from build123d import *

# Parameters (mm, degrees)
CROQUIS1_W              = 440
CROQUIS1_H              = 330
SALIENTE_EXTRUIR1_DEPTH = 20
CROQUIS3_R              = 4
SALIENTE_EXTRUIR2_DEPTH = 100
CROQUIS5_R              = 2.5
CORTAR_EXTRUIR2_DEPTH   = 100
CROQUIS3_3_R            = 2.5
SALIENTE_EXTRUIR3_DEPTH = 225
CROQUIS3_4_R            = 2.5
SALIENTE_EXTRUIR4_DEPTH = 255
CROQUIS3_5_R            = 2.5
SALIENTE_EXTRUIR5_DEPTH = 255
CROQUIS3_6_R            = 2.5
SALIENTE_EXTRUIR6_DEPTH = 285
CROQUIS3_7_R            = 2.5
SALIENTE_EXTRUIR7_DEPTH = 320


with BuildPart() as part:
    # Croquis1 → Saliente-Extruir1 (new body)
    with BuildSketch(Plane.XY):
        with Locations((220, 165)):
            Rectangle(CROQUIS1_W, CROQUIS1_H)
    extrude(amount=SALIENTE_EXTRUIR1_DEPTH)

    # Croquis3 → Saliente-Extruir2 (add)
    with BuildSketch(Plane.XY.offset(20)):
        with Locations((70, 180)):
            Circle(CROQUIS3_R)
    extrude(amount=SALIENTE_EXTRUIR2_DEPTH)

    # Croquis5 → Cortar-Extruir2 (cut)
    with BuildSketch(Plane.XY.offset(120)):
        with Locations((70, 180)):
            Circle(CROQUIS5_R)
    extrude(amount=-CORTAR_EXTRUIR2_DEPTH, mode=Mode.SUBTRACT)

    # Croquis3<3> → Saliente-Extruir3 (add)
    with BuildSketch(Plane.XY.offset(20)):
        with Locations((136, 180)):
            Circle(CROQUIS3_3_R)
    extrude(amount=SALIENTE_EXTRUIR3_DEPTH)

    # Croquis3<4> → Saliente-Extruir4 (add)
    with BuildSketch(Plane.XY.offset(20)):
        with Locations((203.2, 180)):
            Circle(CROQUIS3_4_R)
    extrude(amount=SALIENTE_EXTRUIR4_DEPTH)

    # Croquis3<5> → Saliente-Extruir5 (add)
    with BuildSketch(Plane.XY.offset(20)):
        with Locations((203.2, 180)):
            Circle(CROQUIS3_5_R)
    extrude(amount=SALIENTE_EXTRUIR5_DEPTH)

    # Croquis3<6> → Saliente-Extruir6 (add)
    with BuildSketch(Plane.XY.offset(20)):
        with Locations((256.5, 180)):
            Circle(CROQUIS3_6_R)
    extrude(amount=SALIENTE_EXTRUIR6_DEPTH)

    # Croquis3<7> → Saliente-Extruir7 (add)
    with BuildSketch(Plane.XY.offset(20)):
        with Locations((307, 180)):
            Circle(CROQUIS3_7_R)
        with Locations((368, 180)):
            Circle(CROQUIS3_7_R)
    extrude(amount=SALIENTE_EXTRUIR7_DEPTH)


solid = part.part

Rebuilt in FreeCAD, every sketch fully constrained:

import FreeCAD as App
import Part
import Sketcher
from FreeCAD import Vector
Q = App.Units.Quantity

doc = App.newDocument("Part")
params = doc.addObject("Spreadsheet::Sheet", "Params")
for row, (alias, value) in enumerate([
    ("sketch1_width", "440 mm"),
    ("sketch1_height", "330 mm"),
    ("pad1_length", "20 mm"),
    ("sketch2_diameter", "8 mm"),
    ("pad2_length", "100 mm"),
    ("sketch3_diameter", "5 mm"),
    ("pocket1_length", "100 mm"),
    ("sketch4_diameter", "5 mm"),
    ("pad3_length", "225 mm"),
    ("sketch5_diameter", "5 mm"),
    ("pad4_length", "255 mm"),
    ("sketch6_diameter", "5 mm"),
    ("pad5_length", "255 mm"),
    ("sketch7_diameter", "5 mm"),
    ("pad6_length", "285 mm"),
    ("sketch8_diameter", "5 mm"),
    ("pad7_length", "320 mm"),
], start=1):
    params.set(f"A{row}", alias)
    params.set(f"B{row}", "=" + value)
    params.setAlias(f"B{row}", alias)

body = doc.addObject("PartDesign::Body", "Body")

sketch1 = body.newObject("Sketcher::SketchObject", "Sketch")
sketch1.AttachmentSupport = (doc.getObject("XY_Plane"), [""])
sketch1.MapMode = "FlatFace"
sketch1.addGeometry([
    Part.LineSegment(Vector(0, 330, 0), Vector(0, 0, 0)),
    Part.LineSegment(Vector(0, 0, 0), Vector(440, 0, 0)),
    Part.LineSegment(Vector(440, 0, 0), Vector(440, 330, 0)),
    Part.LineSegment(Vector(440, 330, 0), Vector(0, 330, 0)),
], False)
sketch1.addConstraint([
    Sketcher.Constraint("Coincident", 0, 2, 1, 1),
    Sketcher.Constraint("Coincident", 1, 2, 2, 1),
    Sketcher.Constraint("Coincident", 2, 2, 3, 1),
    Sketcher.Constraint("Coincident", 3, 2, 0, 1),
    Sketcher.Constraint("Vertical", 0),
    Sketcher.Constraint("Horizontal", 1),
    Sketcher.Constraint("Vertical", 2),
    Sketcher.Constraint("Horizontal", 3),
    Sketcher.Constraint("Coincident", 0, 2, -1, 1),
    Sketcher.Constraint("DistanceX", 1, 1, 1, 2, Q("440 mm")),
    Sketcher.Constraint("DistanceY", 0, 2, 0, 1, Q("330 mm")),
])
sketch1.setExpression("Constraints[9]", "Params.sketch1_width")
sketch1.setExpression("Constraints[10]", "Params.sketch1_height")
pad1 = body.newObject("PartDesign::Pad", "Pad")
pad1.Profile = sketch1
pad1.setExpression("Length", "Params.pad1_length")

sketch2 = body.newObject("Sketcher::SketchObject", "Sketch001")
sketch2.AttachmentSupport = (doc.getObject("XY_Plane"), [""])
sketch2.MapMode = "FlatFace"
sketch2.AttachmentOffset = App.Placement(Vector(0, 0, 20), App.Rotation())
sketch2.addGeometry(Part.Circle(Vector(70, 180, 0), Vector(0, 0, 1), 4), False)
sketch2.addConstraint([
    Sketcher.Constraint("Diameter", 0, Q("8 mm")),
    Sketcher.Constraint("DistanceX", -1, 1, 0, 3, Q("70 mm")),
    Sketcher.Constraint("DistanceY", -1, 1, 0, 3, Q("180 mm")),
])
sketch2.setExpression("Constraints[0]", "Params.sketch2_diameter")
pad2 = body.newObject("PartDesign::Pad", "Pad001")
pad2.Profile = sketch2
pad2.setExpression("Length", "Params.pad2_length")

sketch3 = body.newObject("Sketcher::SketchObject", "Sketch002")
sketch3.AttachmentSupport = (doc.getObject("XY_Plane"), [""])
sketch3.MapMode = "FlatFace"
sketch3.AttachmentOffset = App.Placement(Vector(0, 0, 120), App.Rotation())
sketch3.addGeometry(Part.Circle(Vector(70, 180, 0), Vector(0, 0, 1), 2.5), False)
sketch3.addConstraint([
    Sketcher.Constraint("Diameter", 0, Q("5 mm")),
    Sketcher.Constraint("DistanceX", -1, 1, 0, 3, Q("70 mm")),
    Sketcher.Constraint("DistanceY", -1, 1, 0, 3, Q("180 mm")),
])
sketch3.setExpression("Constraints[0]", "Params.sketch3_diameter")
pocket1 = body.newObject("PartDesign::Pocket", "Pocket")
pocket1.Profile = sketch3
pocket1.setExpression("Length", "Params.pocket1_length")

sketch4 = body.newObject("Sketcher::SketchObject", "Sketch003")
sketch4.AttachmentSupport = (doc.getObject("XY_Plane"), [""])
sketch4.MapMode = "FlatFace"
sketch4.AttachmentOffset = App.Placement(Vector(0, 0, 20), App.Rotation())
sketch4.addGeometry(Part.Circle(Vector(136, 180, 0), Vector(0, 0, 1), 2.5), False)
sketch4.addConstraint([
    Sketcher.Constraint("Diameter", 0, Q("5 mm")),
    Sketcher.Constraint("DistanceX", -1, 1, 0, 3, Q("136 mm")),
    Sketcher.Constraint("DistanceY", -1, 1, 0, 3, Q("180 mm")),
])
sketch4.setExpression("Constraints[0]", "Params.sketch4_diameter")
pad3 = body.newObject("PartDesign::Pad", "Pad002")
pad3.Profile = sketch4
pad3.setExpression("Length", "Params.pad3_length")

sketch5 = body.newObject("Sketcher::SketchObject", "Sketch004")
sketch5.AttachmentSupport = (doc.getObject("XY_Plane"), [""])
sketch5.MapMode = "FlatFace"
sketch5.AttachmentOffset = App.Placement(Vector(0, 0, 20), App.Rotation())
sketch5.addGeometry(Part.Circle(Vector(203.2, 180, 0), Vector(0, 0, 1), 2.5), False)
sketch5.addConstraint([
    Sketcher.Constraint("Diameter", 0, Q("5 mm")),
    Sketcher.Constraint("DistanceY", -1, 1, 0, 3, Q("180 mm")),
    Sketcher.Constraint("DistanceX", -1, 1, 0, 3, Q("203.2 mm")),
])
sketch5.setExpression("Constraints[0]", "Params.sketch5_diameter")
pad4 = body.newObject("PartDesign::Pad", "Pad003")
pad4.Profile = sketch5
pad4.setExpression("Length", "Params.pad4_length")

sketch6 = body.newObject("Sketcher::SketchObject", "Sketch005")
sketch6.AttachmentSupport = (doc.getObject("XY_Plane"), [""])
sketch6.MapMode = "FlatFace"
sketch6.AttachmentOffset = App.Placement(Vector(0, 0, 20), App.Rotation())
sketch6.addGeometry(Part.Circle(Vector(203.2, 180, 0), Vector(0, 0, 1), 2.5), False)
sketch6.addConstraint([
    Sketcher.Constraint("Diameter", 0, Q("5 mm")),
    Sketcher.Constraint("DistanceY", -1, 1, 0, 3, Q("180 mm")),
    Sketcher.Constraint("DistanceX", -1, 1, 0, 3, Q("203.2 mm")),
])
sketch6.setExpression("Constraints[0]", "Params.sketch6_diameter")
pad5 = body.newObject("PartDesign::Pad", "Pad004")
pad5.Profile = sketch6
pad5.setExpression("Length", "Params.pad5_length")

sketch7 = body.newObject("Sketcher::SketchObject", "Sketch006")
sketch7.AttachmentSupport = (doc.getObject("XY_Plane"), [""])
sketch7.MapMode = "FlatFace"
sketch7.AttachmentOffset = App.Placement(Vector(0, 0, 20), App.Rotation())
sketch7.addGeometry(Part.Circle(Vector(256.5, 180, 0), Vector(0, 0, 1), 2.5), False)
sketch7.addConstraint([
    Sketcher.Constraint("Diameter", 0, Q("5 mm")),
    Sketcher.Constraint("DistanceY", -1, 1, 0, 3, Q("180 mm")),
    Sketcher.Constraint("DistanceX", -1, 1, 0, 3, Q("256.5 mm")),
])
sketch7.setExpression("Constraints[0]", "Params.sketch7_diameter")
pad6 = body.newObject("PartDesign::Pad", "Pad005")
pad6.Profile = sketch7
pad6.setExpression("Length", "Params.pad6_length")

sketch8 = body.newObject("Sketcher::SketchObject", "Sketch007")
sketch8.AttachmentSupport = (doc.getObject("XY_Plane"), [""])
sketch8.MapMode = "FlatFace"
sketch8.AttachmentOffset = App.Placement(Vector(0, 0, 20), App.Rotation())
sketch8.addGeometry([
    Part.Circle(Vector(307, 180, 0), Vector(0, 0, 1), 2.5),
    Part.Circle(Vector(368, 180, 0), Vector(0, 0, 1), 2.5),
], False)
sketch8.addConstraint([
    Sketcher.Constraint("Equal", 0, 1),
    Sketcher.Constraint("Horizontal", 0, 3, 1, 3),
    Sketcher.Constraint("Diameter", 0, Q("5 mm")),
    Sketcher.Constraint("DistanceX", -1, 1, 0, 3, Q("307 mm")),
    Sketcher.Constraint("DistanceY", -1, 1, 0, 3, Q("180 mm")),
    Sketcher.Constraint("DistanceX", -1, 1, 1, 3, Q("368 mm")),
])
sketch8.setExpression("Constraints[2]", "Params.sketch8_diameter")
pad7 = body.newObject("PartDesign::Pad", "Pad006")
pad7.Profile = sketch8
pad7.setExpression("Length", "Params.pad7_length")

doc.recompute()
